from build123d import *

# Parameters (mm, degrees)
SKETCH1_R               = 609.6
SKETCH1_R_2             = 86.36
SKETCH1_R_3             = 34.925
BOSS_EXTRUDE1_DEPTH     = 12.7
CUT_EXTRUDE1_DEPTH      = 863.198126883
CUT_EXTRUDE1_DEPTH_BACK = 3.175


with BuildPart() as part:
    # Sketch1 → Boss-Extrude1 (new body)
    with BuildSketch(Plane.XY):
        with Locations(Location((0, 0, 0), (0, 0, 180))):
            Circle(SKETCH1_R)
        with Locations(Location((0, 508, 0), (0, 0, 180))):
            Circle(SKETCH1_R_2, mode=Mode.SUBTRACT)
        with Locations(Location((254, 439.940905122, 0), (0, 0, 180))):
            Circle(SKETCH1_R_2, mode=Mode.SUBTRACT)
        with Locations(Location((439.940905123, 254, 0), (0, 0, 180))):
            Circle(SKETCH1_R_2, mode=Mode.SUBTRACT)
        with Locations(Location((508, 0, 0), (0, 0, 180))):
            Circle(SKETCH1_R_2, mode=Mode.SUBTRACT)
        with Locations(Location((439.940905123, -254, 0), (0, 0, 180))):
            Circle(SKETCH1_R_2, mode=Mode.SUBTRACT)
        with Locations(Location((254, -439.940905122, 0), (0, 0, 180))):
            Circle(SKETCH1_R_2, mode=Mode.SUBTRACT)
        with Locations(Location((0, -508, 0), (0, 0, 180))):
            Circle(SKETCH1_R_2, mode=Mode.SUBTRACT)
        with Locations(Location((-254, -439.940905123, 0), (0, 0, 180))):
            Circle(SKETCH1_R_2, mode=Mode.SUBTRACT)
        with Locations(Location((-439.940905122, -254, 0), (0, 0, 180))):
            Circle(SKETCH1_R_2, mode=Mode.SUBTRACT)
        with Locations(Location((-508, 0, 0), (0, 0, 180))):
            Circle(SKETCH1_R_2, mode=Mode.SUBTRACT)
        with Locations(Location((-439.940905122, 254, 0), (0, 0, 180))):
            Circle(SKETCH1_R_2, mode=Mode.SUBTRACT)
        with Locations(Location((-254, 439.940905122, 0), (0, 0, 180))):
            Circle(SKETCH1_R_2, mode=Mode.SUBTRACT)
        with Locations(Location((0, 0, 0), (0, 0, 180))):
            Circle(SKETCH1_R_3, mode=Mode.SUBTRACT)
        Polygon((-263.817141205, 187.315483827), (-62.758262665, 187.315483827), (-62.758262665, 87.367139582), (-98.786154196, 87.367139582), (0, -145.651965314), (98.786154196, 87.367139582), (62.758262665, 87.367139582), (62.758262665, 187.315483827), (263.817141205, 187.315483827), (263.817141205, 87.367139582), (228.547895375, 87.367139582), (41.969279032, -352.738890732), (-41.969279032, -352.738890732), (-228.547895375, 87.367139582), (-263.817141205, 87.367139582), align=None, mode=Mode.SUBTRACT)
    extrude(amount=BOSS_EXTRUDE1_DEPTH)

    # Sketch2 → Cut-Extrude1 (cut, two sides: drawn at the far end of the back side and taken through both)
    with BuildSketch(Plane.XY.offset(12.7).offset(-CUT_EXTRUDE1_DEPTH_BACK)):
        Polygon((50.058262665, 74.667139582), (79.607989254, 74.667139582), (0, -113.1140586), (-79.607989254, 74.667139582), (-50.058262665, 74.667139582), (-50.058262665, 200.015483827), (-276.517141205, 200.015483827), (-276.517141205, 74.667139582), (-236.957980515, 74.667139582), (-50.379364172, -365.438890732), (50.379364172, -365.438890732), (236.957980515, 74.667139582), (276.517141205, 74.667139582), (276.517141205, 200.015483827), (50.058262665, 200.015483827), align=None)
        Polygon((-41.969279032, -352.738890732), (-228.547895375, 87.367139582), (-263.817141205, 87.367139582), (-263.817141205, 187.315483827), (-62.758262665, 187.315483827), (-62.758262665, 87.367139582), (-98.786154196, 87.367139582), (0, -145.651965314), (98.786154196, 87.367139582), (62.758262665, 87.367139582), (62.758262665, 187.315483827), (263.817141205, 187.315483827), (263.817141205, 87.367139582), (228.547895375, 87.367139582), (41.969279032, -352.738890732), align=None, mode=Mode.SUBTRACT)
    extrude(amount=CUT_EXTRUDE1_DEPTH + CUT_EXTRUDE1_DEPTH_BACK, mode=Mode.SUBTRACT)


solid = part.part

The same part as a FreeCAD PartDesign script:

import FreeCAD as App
import Part
import Sketcher
Q = App.Units.Quantity

doc = App.newDocument("Part")
body = doc.addObject("PartDesign::Body", "Body")

sketch1 = body.newObject("Sketcher::SketchObject", "Sketch")
sketch1.AttachmentSupport = (doc.getObject("XY_Plane"), [""])
sketch1.MapMode = "FlatFace"
sketch1.addGeometry(Part.Circle(App.Vector(0, 0, 0), App.Vector(0, 0, 1), 609.6), False)
sketch1.addGeometry(Part.Circle(App.Vector(254, 439.940905, 0), App.Vector(0, 0, 1), 86.36), False)
sketch1.addGeometry(Part.Circle(App.Vector(439.940905, 254, 0), App.Vector(0, 0, 1), 86.36), False)
sketch1.addGeometry(Part.Circle(App.Vector(0, 508, 0), App.Vector(0, 0, 1), 86.36), False)
sketch1.addGeometry(Part.Circle(App.Vector(-254, 439.940905, 0), App.Vector(0, 0, 1), 86.36), False)
sketch1.addGeometry(Part.Circle(App.Vector(-439.940905, 254, 0), App.Vector(0, 0, 1), 86.36), False)
sketch1.addGeometry(Part.Circle(App.Vector(508, 0, 0), App.Vector(0, 0, 1), 86.36), False)
sketch1.addGeometry(Part.Circle(App.Vector(439.940905, -254, 0), App.Vector(0, 0, 1), 86.36), False)
sketch1.addGeometry(Part.Circle(App.Vector(254, -439.940905, 0), App.Vector(0, 0, 1), 86.36), False)
sketch1.addGeometry(Part.Circle(App.Vector(0, 0, 0), App.Vector(0, 0, 1), 34.925), False)
sketch1.addGeometry(Part.LineSegment(App.Vector(-263.817141, 87.36714, 0), App.Vector(-263.817141, 187.315484, 0)), False)
sketch1.addGeometry(Part.LineSegment(App.Vector(-263.817141, 187.315484, 0), App.Vector(-62.758263, 187.315484, 0)), False)
sketch1.addGeometry(Part.LineSegment(App.Vector(-62.758263, 187.315484, 0), App.Vector(-62.758263, 87.36714, 0)), False)
sketch1.addGeometry(Part.LineSegment(App.Vector(-62.758263, 87.36714, 0), App.Vector(-98.786154, 87.36714, 0)), False)
sketch1.addGeometry(Part.LineSegment(App.Vector(-98.786154, 87.36714, 0), App.Vector(0, -145.651965, 0)), False)
sketch1.addGeometry(Part.LineSegment(App.Vector(0, -145.651965, 0), App.Vector(98.786154, 87.36714, 0)), False)
sketch1.addGeometry(Part.LineSegment(App.Vector(98.786154, 87.36714, 0), App.Vector(62.758263, 87.36714, 0)), False)
sketch1.addGeometry(Part.LineSegment(App.Vector(62.758263, 87.36714, 0), App.Vector(62.758263, 187.315484, 0)), False)
sketch1.addGeometry(Part.LineSegment(App.Vector(62.758263, 187.315484, 0), App.Vector(263.817141, 187.315484, 0)), False)
sketch1.addGeometry(Part.LineSegment(App.Vector(263.817141, 187.315484, 0), App.Vector(263.817141, 87.36714, 0)), False)
sketch1.addGeometry(Part.LineSegment(App.Vector(263.817141, 87.36714, 0), App.Vector(228.547895, 87.36714, 0)), False)
sketch1.addGeometry(Part.LineSegment(App.Vector(228.547895, 87.36714, 0), App.Vector(41.969279, -352.738891, 0)), False)
sketch1.addGeometry(Part.LineSegment(App.Vector(41.969279, -352.738891, 0), App.Vector(-41.969279, -352.738891, 0)), False)
sketch1.addGeometry(Part.LineSegment(App.Vector(-41.969279, -352.738891, 0), App.Vector(-228.547895, 87.36714, 0)), False)
sketch1.addGeometry(Part.LineSegment(App.Vector(-228.547895, 87.36714, 0), App.Vector(-263.817141, 87.36714, 0)), False)
sketch1.addGeometry(Part.Circle(App.Vector(-508, 0, 0), App.Vector(0, 0, 1), 86.36), False)
sketch1.addGeometry(Part.Circle(App.Vector(-439.940905, -254, 0), App.Vector(0, 0, 1), 86.36), False)
sketch1.addGeometry(Part.Circle(App.Vector(-254, -439.940905, 0), App.Vector(0, 0, 1), 86.36), False)
sketch1.addGeometry(Part.Circle(App.Vector(0, -508, 0), App.Vector(0, 0, 1), 86.36), False)
sketch1.addConstraint(Sketcher.Constraint("Coincident", 10, 2, 11, 1))
sketch1.addConstraint(Sketcher.Constraint("Coincident", 11, 2, 12, 1))
sketch1.addConstraint(Sketcher.Constraint("Coincident", 12, 2, 13, 1))
sketch1.addConstraint(Sketcher.Constraint("Coincident", 13, 2, 14, 1))
sketch1.addConstraint(Sketcher.Constraint("Coincident", 14, 2, 15, 1))
sketch1.addConstraint(Sketcher.Constraint("Coincident", 15, 2, 16, 1))
sketch1.addConstraint(Sketcher.Constraint("Coincident", 16, 2, 17, 1))
sketch1.addConstraint(Sketcher.Constraint("Coincident", 17, 2, 18, 1))
sketch1.addConstraint(Sketcher.Constraint("Coincident", 18, 2, 19, 1))
sketch1.addConstraint(Sketcher.Constraint("Coincident", 19, 2, 20, 1))
sketch1.addConstraint(Sketcher.Constraint("Coincident", 20, 2, 21, 1))
sketch1.addConstraint(Sketcher.Constraint("Coincident", 21, 2, 22, 1))
sketch1.addConstraint(Sketcher.Constraint("Coincident", 22, 2, 23, 1))
sketch1.addConstraint(Sketcher.Constraint("Coincident", 23, 2, 24, 1))
sketch1.addConstraint(Sketcher.Constraint("Coincident", 24, 2, 10, 1))
sketch1.addConstraint(Sketcher.Constraint("Vertical", 10))
sketch1.addConstraint(Sketcher.Constraint("Horizontal", 11))
sketch1.addConstraint(Sketcher.Constraint("Vertical", 12))
sketch1.addConstraint(Sketcher.Constraint("Horizontal", 13))
sketch1.addConstraint(Sketcher.Constraint("Horizontal", 16))
sketch1.addConstraint(Sketcher.Constraint("Vertical", 17))
sketch1.addConstraint(Sketcher.Constraint("Horizontal", 18))
sketch1.addConstraint(Sketcher.Constraint("Vertical", 19))
sketch1.addConstraint(Sketcher.Constraint("Horizontal", 20))
sketch1.addConstraint(Sketcher.Constraint("Horizontal", 22))
sketch1.addConstraint(Sketcher.Constraint("Horizontal", 24))
sketch1.addConstraint(Sketcher.Constraint("Coincident", 0, 3, -1, 1))
sketch1.addConstraint(Sketcher.Constraint("Coincident", 9, 3, -1, 1))
sketch1.addConstraint(Sketcher.Constraint("Equal", 1, 2))
sketch1.addConstraint(Sketcher.Constraint("Equal", 2, 3))
sketch1.addConstraint(Sketcher.Constraint("Equal", 3, 4))
sketch1.addConstraint(Sketcher.Constraint("Equal", 4, 5))
sketch1.addConstraint(Sketcher.Constraint("Equal", 5, 6))
sketch1.addConstraint(Sketcher.Constraint("Equal", 6, 7))
sketch1.addConstraint(Sketcher.Constraint("Equal", 7, 8))
sketch1.addConstraint(Sketcher.Constraint("Equal", 8, 25))
sketch1.addConstraint(Sketcher.Constraint("Equal", 25, 26))
sketch1.addConstraint(Sketcher.Constraint("Equal", 26, 27))
sketch1.addConstraint(Sketcher.Constraint("Equal", 27, 28))
sketch1.addConstraint(Sketcher.Constraint("Symmetric", 5, 3, 7, 3, -1, 1))
sketch1.addConstraint(Sketcher.Constraint("Symmetric", 4, 3, 8, 3, -1, 1))
sketch1.addConstraint(Sketcher.Constraint("Symmetric", 6, 3, 25, 3, -1, 1))
sketch1.addConstraint(Sketcher.Constraint("Symmetric", 2, 3, 26, 3, -1, 1))
sketch1.addConstraint(Sketcher.Constraint("Symmetric", 1, 3, 27, 3, -1, 1))
sketch1.addConstraint(Sketcher.Constraint("Symmetric", 3, 3, 28, 3, -1, 1))
sketch1.addConstraint(Sketcher.Constraint("Symmetric", 1, 3, 4, 3, -2))
sketch1.addConstraint(Sketcher.Constraint("Symmetric", 2, 3, 5, 3, -2))
sketch1.addConstraint(Sketcher.Constraint("Symmetric", 13, 2, 15, 2, -2))
sketch1.addConstraint(Sketcher.Constraint("Symmetric", 11, 2, 17, 2, -2))
sketch1.addConstraint(Sketcher.Constraint("Symmetric", 20, 2, 23, 2, -2))
sketch1.addConstraint(Sketcher.Constraint("PointOnObject", 3, 3, -2))
sketch1.addConstraint(Sketcher.Constraint("PointOnObject", 6, 3, -1))
sketch1.addConstraint(Sketcher.Constraint("PointOnObject", 14, 2, -2))
sketch1.addConstraint(Sketcher.Constraint("Parallel", 15, 21))
sketch1.addConstraint(Sketcher.Constraint("Parallel", 14, 23))
sketch1.addConstraint(Sketcher.Constraint("Horizontal", 16, 2, 19, 2))
sketch1.addConstraint(Sketcher.Constraint("Equal", 11, 18))
sketch1.addConstraint(Sketcher.Constraint("Diameter", 0, Q("48 in")))
sketch1.addConstraint(Sketcher.Constraint("Diameter", 1, Q("6.8 in")))
sketch1.addConstraint(Sketcher.Constraint("Diameter", 9, Q("2.75 in")))
sketch1.addConstraint(Sketcher.Constraint("DistanceX", -1, 1, 1, 3, Q("10 in")))
sketch1.addConstraint(Sketcher.Constraint("DistanceY", -1, 1, 2, 3, Q("10 in")))
sketch1.addConstraint(Sketcher.Constraint("DistanceY", -1, 1, 3, 3, Q("20 in")))
sketch1.addConstraint(Sketcher.Constraint("DistanceX", -1, 1, 6, 3, Q("20 in")))
sketch1.addConstraint(Sketcher.Constraint("DistanceX", 11, 1, 11, 2, 201.058879))
sketch1.addConstraint(Sketcher.Constraint("DistanceX", 13, 2, 13, 1, 36.027892))
sketch1.addConstraint(Sketcher.Constraint("DistanceX", 22, 2, 22, 1, 83.938558))
sketch1.addConstraint(Sketcher.Constraint("Distance", 14, 253.094068))
sketch1.addConstraint(Sketcher.Constraint("Distance", 21, 478.021859))
sketch1.addConstraint(Sketcher.Constraint("DistanceX", 20, 2, 20, 1, 35.269246))
sketch1.addConstraint(Sketcher.Constraint("DistanceY", 10, 1, 10, 2, 99.948344))
sketch1.addConstraint(Sketcher.Constraint("DistanceY", -1, 1, 12, 2, 87.36714))
sketch1.addConstraint(Sketcher.Constraint("DistanceX", 5, 3, 2, 3, 879.88181))
sketch1.addConstraint(Sketcher.Constraint("DistanceY", 8, 3, 1, 3, 879.88181))
pad1 = body.newObject("PartDesign::Pad", "Pad")
pad1.Profile = sketch1
pad1.Length = Q("0.5 in")

sketch2 = body.newObject("Sketcher::SketchObject", "Sketch001")
sketch2.AttachmentSupport = (doc.getObject("XY_Plane"), [""])
sketch2.MapMode = "FlatFace"
sketch2.AttachmentOffset = App.Placement(App.Vector(0, 0, 0.5 * 25.4), App.Rotation())
sketch2.addGeometry(Part.LineSegment(App.Vector(50.058263, 74.66714, 0), App.Vector(79.607989, 74.66714, 0)), False)
sketch2.addGeometry(Part.LineSegment(App.Vector(79.607989, 74.66714, 0), App.Vector(0, -113.114059, 0)), False)
sketch2.addGeometry(Part.LineSegment(App.Vector(0, -113.114059, 0), App.Vector(-79.607989, 74.66714, 0)), False)
sketch2.addGeometry(Part.LineSegment(App.Vector(-79.607989, 74.66714, 0), App.Vector(-50.058263, 74.66714, 0)), False)
sketch2.addGeometry(Part.LineSegment(App.Vector(-50.058263, 74.66714, 0), App.Vector(-50.058263, 200.015484, 0)), False)
sketch2.addGeometry(Part.LineSegment(App.Vector(-50.058263, 200.015484, 0), App.Vector(-276.517141, 200.015484, 0)), False)
sketch2.addGeometry(Part.LineSegment(App.Vector(-276.517141, 200.015484, 0), App.Vector(-276.517141, 74.66714, 0)), False)
sketch2.addGeometry(Part.LineSegment(App.Vector(-276.517141, 74.66714, 0), App.Vector(-236.957981, 74.66714, 0)), False)
sketch2.addGeometry(Part.LineSegment(App.Vector(-236.957981, 74.66714, 0), App.Vector(-50.379364, -365.438891, 0)), False)
sketch2.addGeometry(Part.LineSegment(App.Vector(-50.379364, -365.438891, 0), App.Vector(50.379364, -365.438891, 0)), False)
sketch2.addGeometry(Part.LineSegment(App.Vector(50.379364, -365.438891, 0), App.Vector(236.957981, 74.66714, 0)), False)
sketch2.addGeometry(Part.LineSegment(App.Vector(236.957981, 74.66714, 0), App.Vector(276.517141, 74.66714, 0)), False)
sketch2.addGeometry(Part.LineSegment(App.Vector(276.517141, 74.66714, 0), App.Vector(276.517141, 200.015484, 0)), False)
sketch2.addGeometry(Part.LineSegment(App.Vector(276.517141, 200.015484, 0), App.Vector(50.058263, 200.015484, 0)), False)
sketch2.addGeometry(Part.LineSegment(App.Vector(50.058263, 200.015484, 0), App.Vector(50.058263, 74.66714, 0)), False)
sketch2.addGeometry(Part.LineSegment(App.Vector(41.969279, -352.738891, 0), App.Vector(-41.969279, -352.738891, 0)), False)
sketch2.addGeometry(Part.LineSegment(App.Vector(-41.969279, -352.738891, 0), App.Vector(-228.547895, 87.36714, 0)), False)
sketch2.addGeometry(Part.LineSegment(App.Vector(-228.547895, 87.36714, 0), App.Vector(-263.817141, 87.36714, 0)), False)
sketch2.addGeometry(Part.LineSegment(App.Vector(-263.817141, 87.36714, 0), App.Vector(-263.817141, 187.315484, 0)), False)
sketch2.addGeometry(Part.LineSegment(App.Vector(-263.817141, 187.315484, 0), App.Vector(-62.758263, 187.315484, 0)), False)
sketch2.addGeometry(Part.LineSegment(App.Vector(-62.758263, 187.315484, 0), App.Vector(-62.758263, 87.36714, 0)), False)
sketch2.addGeometry(Part.LineSegment(App.Vector(-62.758263, 87.36714, 0), App.Vector(-98.786154, 87.36714, 0)), False)
sketch2.addGeometry(Part.LineSegment(App.Vector(-98.786154, 87.36714, 0), App.Vector(0, -145.651965, 0)), False)
sketch2.addGeometry(Part.LineSegment(App.Vector(0, -145.651965, 0), App.Vector(98.786154, 87.36714, 0)), False)
sketch2.addGeometry(Part.LineSegment(App.Vector(98.786154, 87.36714, 0), App.Vector(62.758263, 87.36714, 0)), False)
sketch2.addGeometry(Part.LineSegment(App.Vector(62.758263, 87.36714, 0), App.Vector(62.758263, 187.315484, 0)), False)
sketch2.addGeometry(Part.LineSegment(App.Vector(62.758263, 187.315484, 0), App.Vector(263.817141, 187.315484, 0)), False)
sketch2.addGeometry(Part.LineSegment(App.Vector(263.817141, 187.315484, 0), App.Vector(263.817141, 87.36714, 0)), False)
sketch2.addGeometry(Part.LineSegment(App.Vector(263.817141, 87.36714, 0), App.Vector(228.547895, 87.36714, 0)), False)
sketch2.addGeometry(Part.LineSegment(App.Vector(228.547895, 87.36714, 0), App.Vector(41.969279, -352.738891, 0)), False)
sketch2.addConstraint(Sketcher.Constraint("Coincident", 0, 2, 1, 1))
sketch2.addConstraint(Sketcher.Constraint("Coincident", 1, 2, 2, 1))
sketch2.addConstraint(Sketcher.Constraint("Coincident", 2, 2, 3, 1))
sketch2.addConstraint(Sketcher.Constraint("Coincident", 3, 2, 4, 1))
sketch2.addConstraint(Sketcher.Constraint("Coincident", 4, 2, 5, 1))
sketch2.addConstraint(Sketcher.Constraint("Coincident", 5, 2, 6, 1))
sketch2.addConstraint(Sketcher.Constraint("Coincident", 6, 2, 7, 1))
sketch2.addConstraint(Sketcher.Constraint("Coincident", 7, 2, 8, 1))
sketch2.addConstraint(Sketcher.Constraint("Coincident", 8, 2, 9, 1))
sketch2.addConstraint(Sketcher.Constraint("Coincident", 9, 2, 10, 1))
sketch2.addConstraint(Sketcher.Constraint("Coincident", 10, 2, 11, 1))
sketch2.addConstraint(Sketcher.Constraint("Coincident", 11, 2, 12, 1))
sketch2.addConstraint(Sketcher.Constraint("Coincident", 12, 2, 13, 1))
sketch2.addConstraint(Sketcher.Constraint("Coincident", 13, 2, 14, 1))
sketch2.addConstraint(Sketcher.Constraint("Coincident", 14, 2, 0, 1))
sketch2.addConstraint(Sketcher.Constraint("Coincident", 15, 2, 16, 1))
sketch2.addConstraint(Sketcher.Constraint("Coincident", 16, 2, 17, 1))
sketch2.addConstraint(Sketcher.Constraint("Coincident", 17, 2, 18, 1))
sketch2.addConstraint(Sketcher.Constraint("Coincident", 18, 2, 19, 1))
sketch2.addConstraint(Sketcher.Constraint("Coincident", 19, 2, 20, 1))
sketch2.addConstraint(Sketcher.Constraint("Coincident", 20, 2, 21, 1))
sketch2.addConstraint(Sketcher.Constraint("Coincident", 21, 2, 22, 1))
sketch2.addConstraint(Sketcher.Constraint("Coincident", 22, 2, 23, 1))
sketch2.addConstraint(Sketcher.Constraint("Coincident", 23, 2, 24, 1))
sketch2.addConstraint(Sketcher.Constraint("Coincident", 24, 2, 25, 1))
sketch2.addConstraint(Sketcher.Constraint("Coincident", 25, 2, 26, 1))
sketch2.addConstraint(Sketcher.Constraint("Coincident", 26, 2, 27, 1))
sketch2.addConstraint(Sketcher.Constraint("Coincident", 27, 2, 28, 1))
sketch2.addConstraint(Sketcher.Constraint("Coincident", 28, 2, 29, 1))
sketch2.addConstraint(Sketcher.Constraint("Coincident", 29, 2, 15, 1))
sketch2.addConstraint(Sketcher.Constraint("Horizontal", 0))
sketch2.addConstraint(Sketcher.Constraint("Horizontal", 3))
sketch2.addConstraint(Sketcher.Constraint("Vertical", 4))
sketch2.addConstraint(Sketcher.Constraint("Horizontal", 5))
sketch2.addConstraint(Sketcher.Constraint("Vertical", 6))
sketch2.addConstraint(Sketcher.Constraint("Horizontal", 7))
sketch2.addConstraint(Sketcher.Constraint("Horizontal", 9))
sketch2.addConstraint(Sketcher.Constraint("Horizontal", 11))
sketch2.addConstraint(Sketcher.Constraint("Vertical", 12))
sketch2.addConstraint(Sketcher.Constraint("Horizontal", 13))
sketch2.addConstraint(Sketcher.Constraint("Vertical", 14))
sketch2.addConstraint(Sketcher.Constraint("Horizontal", 15))
sketch2.addConstraint(Sketcher.Constraint("Horizontal", 17))
sketch2.addConstraint(Sketcher.Constraint("Vertical", 18))
sketch2.addConstraint(Sketcher.Constraint("Horizontal", 19))
sketch2.addConstraint(Sketcher.Constraint("Vertical", 20))
sketch2.addConstraint(Sketcher.Constraint("Horizontal", 21))
sketch2.addConstraint(Sketcher.Constraint("Horizontal", 24))
sketch2.addConstraint(Sketcher.Constraint("Vertical", 25))
sketch2.addConstraint(Sketcher.Constraint("Horizontal", 26))
sketch2.addConstraint(Sketcher.Constraint("Vertical", 27))
sketch2.addConstraint(Sketcher.Constraint("Horizontal", 28))
sketch2.addConstraint(Sketcher.Constraint("Symmetric", 0, 2, 2, 2, -2))
sketch2.addConstraint(Sketcher.Constraint("Symmetric", 7, 2, 10, 2, -2))
sketch2.addConstraint(Sketcher.Constraint("Symmetric", 5, 2, 12, 2, -2))
sketch2.addConstraint(Sketcher.Constraint("Symmetric", 21, 2, 23, 2, -2))
sketch2.addConstraint(Sketcher.Constraint("Symmetric", 19, 2, 25, 2, -2))
sketch2.addConstraint(Sketcher.Constraint("Symmetric", 17, 2, 27, 2, -2))
sketch2.addConstraint(Sketcher.Constraint("PointOnObject", 1, 2, -2))
sketch2.addConstraint(Sketcher.Constraint("PointOnObject", 22, 2, -2))
sketch2.addConstraint(Sketcher.Constraint("Parallel", 2, 8))
sketch2.addConstraint(Sketcher.Constraint("Parallel", 1, 10))
sketch2.addConstraint(Sketcher.Constraint("Parallel", 8, 16))
sketch2.addConstraint(Sketcher.Constraint("Parallel", 16, 22))
sketch2.addConstraint(Sketcher.Constraint("Parallel", 23, 29))
sketch2.addConstraint(Sketcher.Constraint("Horizontal", 3, 2, 6, 2))
sketch2.addConstraint(Sketcher.Constraint("Horizontal", 17, 2, 20, 2))
sketch2.addConstraint(Sketcher.Constraint("Equal", 0, 3))
sketch2.addConstraint(Sketcher.Constraint("Equal", 17, 28))
sketch2.addConstraint(Sketcher.Constraint("Equal", 10, 16))
sketch2.addConstraint(Sketcher.Constraint("DistanceY", 8, 2, 15, 2, Q("0.5 in")))
sketch2.addConstraint(Sketcher.Constraint("DistanceX", 6, 2, 17, 2, Q("0.5 in")))
sketch2.addConstraint(Sketcher.Constraint("DistanceY", 18, 2, 5, 2, Q("0.5 in")))
sketch2.addConstraint(Sketcher.Constraint("DistanceX", 19, 2, 4, 2, Q("0.5 in")))
sketch2.addConstraint(Sketcher.Constraint("DistanceX", 5, 2, 5, 1, 226.458879))
sketch2.addConstraint(Sketcher.Constraint("DistanceX", 7, 1, 7, 2, 39.559161))
sketch2.addConstraint(Sketcher.Constraint("DistanceX", 9, 1, 9, 2, 100.758728))
sketch2.addConstraint(Sketcher.Constraint("DistanceX", 15, 2, 15, 1, 83.938558))
sketch2.addConstraint(Sketcher.Constraint("DistanceX", 21, 2, 21, 1, 36.027892))
sketch2.addConstraint(Sketcher.Constraint("DistanceY", 1, 2, 0, 2, 187.781198))
sketch2.addConstraint(Sketcher.Constraint("DistanceX", 8, 2, 3, 2, 0.321102))
sketch2.addConstraint(Sketcher.Constraint("Distance", 8, 478.021859))
sketch2.addConstraint(Sketcher.Constraint("DistanceY", 4, 1, 4, 2, 125.348344))
sketch2.addConstraint(Sketcher.Constraint("DistanceY", -1, 1, 0, 2, 74.66714))
pocket1 = body.newObject("PartDesign::Pocket", "Pocket")
pocket1.Profile = sketch2
pocket1.Type = "TwoLengths"
pocket1.Length = 863.198127
pocket1.Length2 = Q("0.125 in")
pocket1.Reversed = True

doc.recompute()
